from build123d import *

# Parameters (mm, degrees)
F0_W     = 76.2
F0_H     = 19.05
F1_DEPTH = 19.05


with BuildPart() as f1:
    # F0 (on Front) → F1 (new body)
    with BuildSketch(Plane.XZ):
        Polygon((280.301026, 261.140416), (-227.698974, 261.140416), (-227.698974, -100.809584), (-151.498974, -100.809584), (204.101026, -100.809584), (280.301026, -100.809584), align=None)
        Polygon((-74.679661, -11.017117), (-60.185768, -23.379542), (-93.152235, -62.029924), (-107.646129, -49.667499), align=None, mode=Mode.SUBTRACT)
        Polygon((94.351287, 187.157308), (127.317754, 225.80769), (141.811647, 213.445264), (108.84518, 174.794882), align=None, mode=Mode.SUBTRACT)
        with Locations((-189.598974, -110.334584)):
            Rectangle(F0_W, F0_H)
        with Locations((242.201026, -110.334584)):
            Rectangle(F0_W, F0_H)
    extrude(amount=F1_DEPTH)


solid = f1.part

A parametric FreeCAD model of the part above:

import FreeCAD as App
import Part
import Sketcher
from FreeCAD import Vector
Q = App.Units.Quantity


def add_polygon(sketch, points):
    """Adds a closed chain of lines whose ends are joined by coincident constraints."""
    first, n = sketch.GeometryCount, len(points)
    for a, b in zip(points, points[1:] + points[:1]):
        sketch.addGeometry(Part.LineSegment(App.Vector(*a, 0), App.Vector(*b, 0)), False)
    for i in range(n):
        sketch.addConstraint(Sketcher.Constraint("Coincident", first + i, 2, first + (i + 1) % n, 1))

doc = App.newDocument("Part")
body = doc.addObject("PartDesign::Body", "Body")

# Sketch on XZ plane
sketch1 = doc.addObject("Sketcher::SketchObject", "Sketch")
body.addObject(sketch1)
sketch1.AttachmentSupport = (doc.XZ_Plane, [""])
sketch1.MapMode = "FlatFace"
add_polygon(sketch1, [(280.301026, 261.140416), (-227.698974, 261.140416), (-227.698974, -119.859584), (-151.498974, -119.859584), (-151.498974, -100.809584), (204.101026, -100.809584), (204.101026, -119.859584), (280.301026, -119.859584)])  # lines 0-7
add_polygon(sketch1, [(-107.646129, -49.667499), (-74.679661, -11.017117), (-60.185768, -23.379542), (-93.152235, -62.029924)])  # lines 8-11
add_polygon(sketch1, [(108.84518, 174.794882), (94.351287, 187.157308), (127.317754, 225.80769), (141.811647, 213.445264)])  # lines 12-15
sketch1.addConstraint([
    Sketcher.Constraint("Horizontal", 0),
    Sketcher.Constraint("Vertical", 1),
    Sketcher.Constraint("Horizontal", 2),
    Sketcher.Constraint("Vertical", 3),
    Sketcher.Constraint("Horizontal", 4),
    Sketcher.Constraint("Vertical", 5),
    Sketcher.Constraint("Horizontal", 6),
    Sketcher.Constraint("Vertical", 7),
    Sketcher.Constraint("Perpendicular", 8, 9),
    Sketcher.Constraint("Perpendicular", 9, 10),
    Sketcher.Constraint("Perpendicular", 10, 11),
    Sketcher.Constraint("Parallel", 11, 12),
    Sketcher.Constraint("Perpendicular", 12, 13),
    Sketcher.Constraint("Perpendicular", 13, 14),
    Sketcher.Constraint("Perpendicular", 14, 15),
    Sketcher.Constraint("Horizontal", 2, 2, 5, 2),
    Sketcher.Constraint("Equal", 2, 6),
    Sketcher.Constraint("Equal", 11, 12),
    Sketcher.Constraint("Equal", 10, 13),
    Sketcher.Constraint("DistanceX", 0, 2, 0, 1, Q("20 in")),
    Sketcher.Constraint("DistanceX", 2, 1, 2, 2, Q("3 in")),
    Sketcher.Constraint("DistanceY", 1, 2, 1, 1, Q("15 in")),
    Sketcher.Constraint("Distance", 8, Q("2 in")),
    Sketcher.Constraint("DistanceY", 3, 1, 3, 2, Q("0.75 in")),
    Sketcher.Constraint("Distance", 9, Q("0.75 in")),
    Sketcher.Constraint("DistanceY", 11, 2, -1, 1, 49.667499),
    Sketcher.Constraint("DistanceX", 8, 2, -1, 1, 74.679661),
    Sketcher.Constraint("DistanceX", 9, 2, -1, 1, 60.185768),
    Sketcher.Constraint("DistanceY", -1, 1, 12, 2, 187.157308),
    Sketcher.Constraint("DistanceX", -1, 1, 15, 2, 108.84518),
    Sketcher.Constraint("DistanceY", 3, 2, 9, 2, 77.430042),
    Sketcher.Constraint("DistanceX", 3, 2, 10, 2, 58.346739),
])
pad1 = doc.addObject("PartDesign::Pad", "Pad")
body.addObject(pad1)
pad1.Profile = sketch1
pad1.Length = Q("0.75 in")

doc.recompute()
